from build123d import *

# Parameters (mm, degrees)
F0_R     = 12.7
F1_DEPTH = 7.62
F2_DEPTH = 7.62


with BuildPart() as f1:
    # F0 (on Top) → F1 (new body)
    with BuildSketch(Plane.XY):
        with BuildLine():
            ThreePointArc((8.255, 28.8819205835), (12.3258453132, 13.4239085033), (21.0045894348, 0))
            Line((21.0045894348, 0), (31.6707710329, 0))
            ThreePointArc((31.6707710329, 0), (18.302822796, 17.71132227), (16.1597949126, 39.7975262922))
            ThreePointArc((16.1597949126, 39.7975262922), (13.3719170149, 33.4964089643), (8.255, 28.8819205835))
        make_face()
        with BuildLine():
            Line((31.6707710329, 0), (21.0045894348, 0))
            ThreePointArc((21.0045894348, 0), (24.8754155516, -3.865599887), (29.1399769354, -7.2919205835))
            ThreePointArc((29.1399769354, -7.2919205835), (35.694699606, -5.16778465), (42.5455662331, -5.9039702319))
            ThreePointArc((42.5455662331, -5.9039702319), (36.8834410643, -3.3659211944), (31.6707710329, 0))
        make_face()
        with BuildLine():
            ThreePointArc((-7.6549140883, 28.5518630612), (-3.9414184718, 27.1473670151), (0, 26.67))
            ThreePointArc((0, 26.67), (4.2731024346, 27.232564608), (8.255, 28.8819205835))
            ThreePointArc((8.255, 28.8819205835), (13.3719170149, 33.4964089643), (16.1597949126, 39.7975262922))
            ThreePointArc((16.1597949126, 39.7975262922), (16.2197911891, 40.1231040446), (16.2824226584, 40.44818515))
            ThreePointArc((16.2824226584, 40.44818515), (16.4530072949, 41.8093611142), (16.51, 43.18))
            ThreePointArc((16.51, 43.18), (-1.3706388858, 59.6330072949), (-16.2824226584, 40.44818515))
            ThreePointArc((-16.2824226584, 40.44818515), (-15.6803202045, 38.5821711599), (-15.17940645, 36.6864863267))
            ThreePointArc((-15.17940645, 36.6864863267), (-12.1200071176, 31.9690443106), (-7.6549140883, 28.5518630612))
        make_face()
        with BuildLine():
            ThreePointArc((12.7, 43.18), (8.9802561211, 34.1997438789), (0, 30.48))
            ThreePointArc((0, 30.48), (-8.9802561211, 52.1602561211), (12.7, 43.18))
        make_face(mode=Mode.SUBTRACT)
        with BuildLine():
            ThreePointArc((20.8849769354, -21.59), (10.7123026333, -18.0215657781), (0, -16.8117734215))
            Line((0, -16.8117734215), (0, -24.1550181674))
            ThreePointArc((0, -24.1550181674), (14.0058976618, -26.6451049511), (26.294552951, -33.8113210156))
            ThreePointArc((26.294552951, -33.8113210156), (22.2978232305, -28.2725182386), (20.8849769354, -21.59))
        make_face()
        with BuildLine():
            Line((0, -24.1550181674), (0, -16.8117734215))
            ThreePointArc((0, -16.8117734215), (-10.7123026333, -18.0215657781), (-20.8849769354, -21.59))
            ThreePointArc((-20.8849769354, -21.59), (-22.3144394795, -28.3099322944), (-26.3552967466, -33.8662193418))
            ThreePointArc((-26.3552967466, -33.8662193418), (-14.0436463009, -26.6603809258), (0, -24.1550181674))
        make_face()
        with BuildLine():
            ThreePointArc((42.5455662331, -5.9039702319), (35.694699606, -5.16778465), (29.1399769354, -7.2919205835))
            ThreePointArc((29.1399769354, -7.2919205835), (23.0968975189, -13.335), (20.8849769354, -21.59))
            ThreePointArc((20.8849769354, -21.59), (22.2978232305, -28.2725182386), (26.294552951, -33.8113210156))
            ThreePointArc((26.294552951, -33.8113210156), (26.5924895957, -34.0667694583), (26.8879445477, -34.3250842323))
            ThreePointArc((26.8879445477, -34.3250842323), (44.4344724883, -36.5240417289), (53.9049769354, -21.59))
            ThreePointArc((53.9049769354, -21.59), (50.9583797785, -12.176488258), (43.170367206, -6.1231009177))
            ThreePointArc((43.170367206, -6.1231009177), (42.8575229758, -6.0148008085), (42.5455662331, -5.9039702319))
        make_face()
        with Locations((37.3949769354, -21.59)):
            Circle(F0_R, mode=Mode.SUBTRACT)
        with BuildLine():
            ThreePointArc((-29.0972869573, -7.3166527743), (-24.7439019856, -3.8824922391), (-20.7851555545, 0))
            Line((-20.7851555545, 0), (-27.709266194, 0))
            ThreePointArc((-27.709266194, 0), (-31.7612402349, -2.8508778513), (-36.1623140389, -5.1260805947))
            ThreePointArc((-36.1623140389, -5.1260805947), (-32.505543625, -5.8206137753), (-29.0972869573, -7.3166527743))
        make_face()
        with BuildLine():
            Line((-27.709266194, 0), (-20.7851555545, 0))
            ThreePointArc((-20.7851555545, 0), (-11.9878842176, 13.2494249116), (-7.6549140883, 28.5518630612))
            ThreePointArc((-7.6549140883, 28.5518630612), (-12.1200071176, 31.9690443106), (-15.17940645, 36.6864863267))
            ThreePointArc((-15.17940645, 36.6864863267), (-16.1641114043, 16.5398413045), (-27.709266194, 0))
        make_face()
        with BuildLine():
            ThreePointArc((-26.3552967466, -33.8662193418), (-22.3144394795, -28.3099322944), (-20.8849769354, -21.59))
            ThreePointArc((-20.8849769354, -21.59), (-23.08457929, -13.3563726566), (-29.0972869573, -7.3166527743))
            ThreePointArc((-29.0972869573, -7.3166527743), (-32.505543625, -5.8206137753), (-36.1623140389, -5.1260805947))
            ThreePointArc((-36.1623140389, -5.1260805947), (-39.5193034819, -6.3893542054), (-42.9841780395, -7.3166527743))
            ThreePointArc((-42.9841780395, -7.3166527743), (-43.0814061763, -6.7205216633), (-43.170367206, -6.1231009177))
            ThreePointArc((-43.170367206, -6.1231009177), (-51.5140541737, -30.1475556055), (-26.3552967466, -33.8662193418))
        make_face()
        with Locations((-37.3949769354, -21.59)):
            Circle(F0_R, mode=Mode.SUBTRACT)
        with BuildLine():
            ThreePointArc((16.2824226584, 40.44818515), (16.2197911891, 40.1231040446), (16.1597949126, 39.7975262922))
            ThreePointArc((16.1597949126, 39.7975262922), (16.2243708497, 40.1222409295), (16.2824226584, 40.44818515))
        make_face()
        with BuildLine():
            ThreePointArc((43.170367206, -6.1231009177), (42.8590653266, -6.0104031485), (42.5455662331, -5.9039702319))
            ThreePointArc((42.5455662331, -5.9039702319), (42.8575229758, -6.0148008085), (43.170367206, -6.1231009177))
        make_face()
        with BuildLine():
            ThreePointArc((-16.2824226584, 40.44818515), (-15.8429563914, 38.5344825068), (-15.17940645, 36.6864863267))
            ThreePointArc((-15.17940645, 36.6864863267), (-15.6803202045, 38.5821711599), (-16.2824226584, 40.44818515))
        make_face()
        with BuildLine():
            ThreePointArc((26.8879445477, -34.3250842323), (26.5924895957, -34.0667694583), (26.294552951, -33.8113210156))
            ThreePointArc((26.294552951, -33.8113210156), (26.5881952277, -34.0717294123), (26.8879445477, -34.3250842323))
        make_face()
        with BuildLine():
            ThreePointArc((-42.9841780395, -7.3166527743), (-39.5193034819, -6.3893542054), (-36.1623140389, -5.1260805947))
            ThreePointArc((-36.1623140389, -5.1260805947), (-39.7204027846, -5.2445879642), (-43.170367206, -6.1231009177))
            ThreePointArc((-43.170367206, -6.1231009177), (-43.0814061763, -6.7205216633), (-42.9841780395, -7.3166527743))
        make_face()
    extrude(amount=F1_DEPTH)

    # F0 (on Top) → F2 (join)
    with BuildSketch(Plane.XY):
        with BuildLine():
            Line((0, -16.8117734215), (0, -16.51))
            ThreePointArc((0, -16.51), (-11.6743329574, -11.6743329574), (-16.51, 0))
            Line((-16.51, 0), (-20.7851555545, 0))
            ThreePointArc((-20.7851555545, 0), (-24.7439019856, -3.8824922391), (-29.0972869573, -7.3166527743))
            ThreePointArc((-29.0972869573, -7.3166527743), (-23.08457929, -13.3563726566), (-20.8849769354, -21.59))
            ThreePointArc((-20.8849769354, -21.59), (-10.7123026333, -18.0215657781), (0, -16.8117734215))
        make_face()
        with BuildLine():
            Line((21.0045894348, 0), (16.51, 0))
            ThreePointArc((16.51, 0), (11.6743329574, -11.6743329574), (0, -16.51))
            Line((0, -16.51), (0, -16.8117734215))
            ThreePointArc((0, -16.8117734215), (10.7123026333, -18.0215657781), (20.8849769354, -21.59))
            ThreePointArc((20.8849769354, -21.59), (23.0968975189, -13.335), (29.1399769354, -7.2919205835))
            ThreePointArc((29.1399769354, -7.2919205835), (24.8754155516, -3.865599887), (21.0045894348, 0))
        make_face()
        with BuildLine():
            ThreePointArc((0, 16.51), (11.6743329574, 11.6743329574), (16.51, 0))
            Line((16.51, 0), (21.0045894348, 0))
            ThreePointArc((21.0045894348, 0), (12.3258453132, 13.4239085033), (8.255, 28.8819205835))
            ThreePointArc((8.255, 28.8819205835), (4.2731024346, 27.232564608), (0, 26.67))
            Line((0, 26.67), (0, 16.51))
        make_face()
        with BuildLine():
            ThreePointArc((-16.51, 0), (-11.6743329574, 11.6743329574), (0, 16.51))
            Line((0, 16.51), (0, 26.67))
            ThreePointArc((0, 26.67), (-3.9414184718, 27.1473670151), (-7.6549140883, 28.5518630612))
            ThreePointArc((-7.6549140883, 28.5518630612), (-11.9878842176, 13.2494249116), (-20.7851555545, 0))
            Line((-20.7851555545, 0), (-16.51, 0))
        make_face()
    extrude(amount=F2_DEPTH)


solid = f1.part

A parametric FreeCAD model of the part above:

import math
import FreeCAD as App
import Part
import Sketcher

V = App.Vector
Q = App.Units.Quantity

doc = App.newDocument("Part")
body = doc.addObject("PartDesign::Body", "Body")

sketch1 = body.newObject("Sketcher::SketchObject", "Sketch")
sketch1.AttachmentSupport = (doc.getObject("XY_Plane"), [""])
sketch1.MapMode = "FlatFace"
sketch1.addGeometry(Part.ArcOfCircle(Part.Circle(V(0, -64.8, 0), V(0, 0, 1), 40.6), math.radians(90), math.radians(130)), False)
sketch1.addGeometry(Part.ArcOfCircle(Part.Circle(V(0, -64.8, 0), V(0, 0, 1), 40.6), math.radians(50), math.radians(90)), False)
sketch1.addGeometry(Part.ArcOfCircle(Part.Circle(V(37.4, -21.6, 0), V(0, 0, 1), 16.5), math.radians(-132.25), math.radians(-129.52)), False)
sketch1.addGeometry(Part.ArcOfCircle(Part.Circle(V(37.4, -21.6, 0), V(0, 0, 1), 16.5), math.radians(-130), math.radians(0)), False)
sketch1.addGeometry(Part.ArcOfCircle(Part.Circle(V(37.4, -21.6, 0), V(0, 0, 1), 16.5), math.radians(0), math.radians(70)), False)
sketch1.addGeometry(Part.ArcOfCircle(Part.Circle(V(37.4, -21.6, 0), V(0, 0, 1), 16.5), math.radians(69.52), math.radians(71.82)), False)
sketch1.addGeometry(Part.ArcOfCircle(Part.Circle(V(56.4, 32.6, 0), V(0, 0, 1), 40.9), math.radians(-127.2), math.radians(-109.79)), False)
sketch1.addGeometry(Part.ArcOfCircle(Part.Circle(V(56.4, 32.6, 0), V(0, 0, 1), 40.9), math.radians(170), math.radians(233)), False)
sketch1.addGeometry(Part.ArcOfCircle(Part.Circle(V(0, 43.2, 0), V(0, 0, 1), 16.5), math.radians(-11.82), math.radians(-9.52)), False)
sketch1.addGeometry(Part.ArcOfCircle(Part.Circle(V(0, 43.2, 0), V(0, 0, 1), 16.5), math.radians(-9.52), math.radians(0)), False)
sketch1.addGeometry(Part.ArcOfCircle(Part.Circle(V(0, 43.2, 0), V(0, 0, 1), 16.5), math.radians(0), math.radians(190)), False)
sketch1.addGeometry(Part.ArcOfCircle(Part.Circle(V(0, 43.2, 0), V(0, 0, 1), 16.5), math.radians(-170.48), math.radians(-156.84)), False)
sketch1.addGeometry(Part.ArcOfCircle(Part.Circle(V(-50.7, 28.3, 0), V(0, 0, 1), 36.5), math.radians(-51), math.radians(13)), False)
sketch1.addGeometry(Part.ArcOfCircle(Part.Circle(V(-50.7, 28.3, 0), V(0, 0, 1), 36.5), math.radians(-66.56), math.radians(-50.97)), False)
sketch1.addGeometry(Part.ArcOfCircle(Part.Circle(V(-37.4, -21.6, 0), V(0, 0, 1), 16.5), math.radians(86), math.radians(110)), False)
sketch1.addGeometry(Part.ArcOfCircle(Part.Circle(V(-37.4, -21.6, 0), V(0, 0, 1), 16.5), math.radians(110), math.radians(312)), False)
sketch1.addGeometry(Part.Circle(V(-37.4, -21.6, 0), V(0, 0, 1), 12.7), False)
sketch1.addGeometry(Part.Circle(V(37.4, -21.6, 0), V(0, 0, 1), 12.7), False)
sketch1.addGeometry(Part.ArcOfCircle(Part.Circle(V(58.7, 33.9, 0), V(0, 0, 1), 50.7), math.radians(-174), math.radians(-138)), False)
sketch1.addGeometry(Part.ArcOfCircle(Part.Circle(V(58.7, 33.9, 0), V(0, 0, 1), 50.7), math.radians(-138.05), math.radians(-125.69)), False)
sketch1.addGeometry(Part.ArcOfCircle(Part.Circle(V(37.4, -21.6, 0), V(0, 0, 1), 16.5), math.radians(120), math.radians(180)), False)
sketch1.addGeometry(Part.ArcOfCircle(Part.Circle(V(0, -64.8, 0), V(0, 0, 1), 48), math.radians(64), math.radians(90)), False)
sketch1.addGeometry(Part.ArcOfCircle(Part.Circle(V(0, -64.8, 0), V(0, 0, 1), 48), math.radians(90), math.radians(116)), False)
sketch1.addGeometry(Part.ArcOfCircle(Part.Circle(V(-37.4, -21.6, 0), V(0, 0, 1), 16.5), math.radians(0), math.radians(60)), False)
sketch1.addGeometry(Part.ArcOfCircle(Part.Circle(V(-58.8, 34.8, 0), V(0, 0, 1), 51.5), math.radians(-54.82), math.radians(-42.47)), False)
sketch1.addGeometry(Part.ArcOfCircle(Part.Circle(V(-58.8, 34.8, 0), V(0, 0, 1), 51.5), math.radians(-42), math.radians(-7)), False)
sketch1.addGeometry(Part.ArcOfCircle(Part.Circle(V(0, 43.2, 0), V(0, 0, 1), 16.5), math.radians(-118), math.radians(-90)), False)
sketch1.addGeometry(Part.ArcOfCircle(Part.Circle(V(0, 43.2, 0), V(0, 0, 1), 16.5), math.radians(-90), math.radians(-60)), False)
sketch1.addGeometry(Part.ArcOfCircle(Part.Circle(V(0, 43.2, 0), V(0, 0, 1), 12.7), math.radians(0), math.radians(270)), False)
sketch1.addGeometry(Part.ArcOfCircle(Part.Circle(V(0, 43.2, 0), V(0, 0, 1), 12.7), math.radians(-90), math.radians(0)), False)
sketch1.addConstraint(Sketcher.Constraint("Tangent", 0, 1, 1, 2))
sketch1.addConstraint(Sketcher.Constraint("Coincident", 1, 1, 2, 1))
sketch1.addConstraint(Sketcher.Constraint("Tangent", 2, 2, 3, 1))
sketch1.addConstraint(Sketcher.Constraint("Tangent", 3, 2, 4, 1))
sketch1.addConstraint(Sketcher.Constraint("Tangent", 4, 2, 5, 1))
sketch1.addConstraint(Sketcher.Constraint("Coincident", 5, 2, 6, 2))
sketch1.addConstraint(Sketcher.Constraint("Tangent", 6, 1, 7, 2))
sketch1.addConstraint(Sketcher.Constraint("Coincident", 7, 1, 8, 1))
sketch1.addConstraint(Sketcher.Constraint("Tangent", 8, 2, 9, 1))
sketch1.addConstraint(Sketcher.Constraint("Tangent", 9, 2, 10, 1))
sketch1.addConstraint(Sketcher.Constraint("Tangent", 10, 2, 11, 1))
sketch1.addConstraint(Sketcher.Constraint("Coincident", 11, 2, 12, 2))
sketch1.addConstraint(Sketcher.Constraint("Tangent", 12, 1, 13, 2))
sketch1.addConstraint(Sketcher.Constraint("Coincident", 13, 1, 14, 1))
sketch1.addConstraint(Sketcher.Constraint("Tangent", 14, 2, 15, 1))
sketch1.addConstraint(Sketcher.Constraint("Coincident", 15, 2, 0, 2))
sketch1.addConstraint(Sketcher.Constraint("Tangent", 18, 2, 19, 1))
sketch1.addConstraint(Sketcher.Constraint("Coincident", 19, 2, 20, 1))
sketch1.addConstraint(Sketcher.Constraint("Coincident", 20, 2, 21, 1))
sketch1.addConstraint(Sketcher.Constraint("Tangent", 21, 2, 22, 1))
sketch1.addConstraint(Sketcher.Constraint("Coincident", 22, 2, 23, 1))
sketch1.addConstraint(Sketcher.Constraint("Coincident", 23, 2, 24, 1))
sketch1.addConstraint(Sketcher.Constraint("Tangent", 24, 2, 25, 1))
sketch1.addConstraint(Sketcher.Constraint("Coincident", 25, 2, 26, 1))
sketch1.addConstraint(Sketcher.Constraint("Tangent", 26, 2, 27, 1))
sketch1.addConstraint(Sketcher.Constraint("Coincident", 27, 2, 18, 1))
sketch1.addConstraint(Sketcher.Constraint("Tangent", 28, 1, 29, 2))
sketch1.addConstraint(Sketcher.Constraint("Coincident", 29, 1, 28, 2))
sketch1.addConstraint(Sketcher.Constraint("Coincident", 4, 3, 2, 3))
sketch1.addConstraint(Sketcher.Constraint("Coincident", 10, 3, 8, 3))
sketch1.addConstraint(Sketcher.Constraint("Coincident", 16, 3, 14, 3))
sketch1.addConstraint(Sketcher.Constraint("Coincident", 17, 3, 2, 3))
sketch1.addConstraint(Sketcher.Constraint("Coincident", 20, 3, 2, 3))
sketch1.addConstraint(Sketcher.Constraint("Coincident", 23, 3, 14, 3))
sketch1.addConstraint(Sketcher.Constraint("Coincident", 26, 3, 8, 3))
sketch1.addConstraint(Sketcher.Constraint("Coincident", 28, 3, 8, 3))
sketch1.addConstraint(Sketcher.Constraint("Equal", 0, 1))
sketch1.addConstraint(Sketcher.Constraint("Equal", 4, 5))
sketch1.addConstraint(Sketcher.Constraint("Equal", 6, 7))
sketch1.addConstraint(Sketcher.Constraint("Equal", 5, 8))
sketch1.addConstraint(Sketcher.Constraint("Equal", 10, 11))
sketch1.addConstraint(Sketcher.Constraint("Equal", 12, 13))
sketch1.addConstraint(Sketcher.Constraint("Equal", 11, 14))
sketch1.addConstraint(Sketcher.Constraint("Equal", 14, 15))
sketch1.addConstraint(Sketcher.Constraint("Equal", 16, 17))
sketch1.addConstraint(Sketcher.Constraint("Equal", 18, 19))
sketch1.addConstraint(Sketcher.Constraint("Equal", 15, 20))
sketch1.addConstraint(Sketcher.Constraint("Equal", 21, 22))
sketch1.addConstraint(Sketcher.Constraint("Equal", 20, 23))
sketch1.addConstraint(Sketcher.Constraint("Equal", 24, 25))
sketch1.addConstraint(Sketcher.Constraint("Equal", 23, 26))
sketch1.addConstraint(Sketcher.Constraint("Equal", 26, 27))
sketch1.addConstraint(Sketcher.Constraint("Equal", 17, 28))
sketch1.addConstraint(Sketcher.Constraint("Symmetric", 2, 3, 14, 3, -2))
sketch1.addConstraint(Sketcher.Constraint("Symmetric", 8, 2, 10, 2, -2))
sketch1.addConstraint(Sketcher.Constraint("PointOnObject", 21, 3, -2))
sketch1.addConstraint(Sketcher.Constraint("PointOnObject", 0, 1, -2))
sketch1.addConstraint(Sketcher.Constraint("PointOnObject", 6, 1, -1))
sketch1.addConstraint(Sketcher.Constraint("PointOnObject", 12, 1, -1))
sketch1.addConstraint(Sketcher.Constraint("PointOnObject", 18, 2, -1))
sketch1.addConstraint(Sketcher.Constraint("PointOnObject", 21, 2, -2))
sketch1.addConstraint(Sketcher.Constraint("PointOnObject", 24, 2, -1))
sketch1.addConstraint(Sketcher.Constraint("PointOnObject", 26, 2, -2))
sketch1.addConstraint(Sketcher.Constraint("PointOnObject", 29, 1, -2))
sketch1.addConstraint(Sketcher.Constraint("Horizontal", 23, 3, 3, 2))
sketch1.addConstraint(Sketcher.Constraint("Horizontal", 29, 3, 9, 2))
sketch1.addConstraint(Sketcher.Constraint("Horizontal", 4, 2, 14, 2))
sketch1.addConstraint(Sketcher.Constraint("Horizontal", 3, 2, 20, 2))
sketch1.addConstraint(Sketcher.Constraint("Horizontal", 9, 2, 28, 1))
sketch1.addConstraint(Sketcher.Constraint("Diameter", 16, Q("1 in")))
sketch1.addConstraint(Sketcher.Constraint("Radius", 2, Q("0.65 in")))
sketch1.addConstraint(Sketcher.Constraint("DistanceY", -1, 1, 8, 3, Q("1.7 in")))
sketch1.addConstraint(Sketcher.Constraint("DistanceY", 2, 3, -1, 1, Q("0.85 in")))
sketch1.addConstraint(Sketcher.Constraint("DistanceX", -1, 1, 27, 2, Q("0.325 in")))
sketch1.addConstraint(Sketcher.Constraint("Radius", 0, 40.62364))
sketch1.addConstraint(Sketcher.Constraint("Radius", 18, 50.730049))
sketch1.addConstraint(Sketcher.Constraint("DistanceX", 19, 2, 5, 3, Q("0.325 in")))
sketch1.addConstraint(Sketcher.Constraint("Radius", 6, 40.871506))
sketch1.addConstraint(Sketcher.Constraint("Radius", 12, 36.458687))
sketch1.addConstraint(Sketcher.Constraint("Radius", 21, 48.031807))
sketch1.addConstraint(Sketcher.Constraint("Radius", 24, 51.475903))
sketch1.addConstraint(Sketcher.Constraint("DistanceX", 13, 1, 24, 2, Q("0.6053999 in")))
sketch1.addConstraint(Sketcher.Constraint("DistanceX", 24, 3, -1, 1, 58.755499))
sketch1.addConstraint(Sketcher.Constraint("DistanceY", 4, 2, -1, 1, 6.123101))
sketch1.addConstraint(Sketcher.Constraint("DistanceX", 5, 2, 4, 2, 0.624801))
sketch1.addConstraint(Sketcher.Constraint("DistanceY", 11, 2, 10, 2, 3.761699))
sketch1.addConstraint(Sketcher.Constraint("DistanceY", 15, 2, 0, 1, 9.711201))
sketch1.addConstraint(Sketcher.Constraint("DistanceX", -1, 1, 0, 3, 0.001889))
sketch1.addConstraint(Sketcher.Constraint("DistanceY", 0, 3, -1, 1, 64.778658))
sketch1.addConstraint(Sketcher.Constraint("DistanceX", 12, 3, -1, 1, 50.665989))
sketch1.addConstraint(Sketcher.Constraint("DistanceX", -1, 1, 6, 1, 31.670771))
sketch1.addConstraint(Sketcher.Constraint("DistanceY", 13, 1, -1, 1, 5.126081))
sketch1.addConstraint(Sketcher.Constraint("DistanceX", 1, 1, 2, 2, 0.593392))
pad1 = body.newObject("PartDesign::Pad", "Pad")
pad1.Profile = sketch1
pad1.Length = Q("0.3 in")

sketch2 = body.newObject("Sketcher::SketchObject", "Sketch001")
sketch2.AttachmentSupport = (doc.getObject("XY_Plane"), [""])
sketch2.MapMode = "FlatFace"
sketch2.addGeometry(Part.ArcOfCircle(Part.Circle(V(-59, 35, 0), V(0, 0, 1), 51), math.radians(-54.82), math.radians(-42.47)), False)
sketch2.addGeometry(Part.ArcOfCircle(Part.Circle(V(-37, -22, 0), V(0, 0, 1), 17), math.radians(0), math.radians(60)), False)
sketch2.addGeometry(Part.ArcOfCircle(Part.Circle(V(0, -65, 0), V(0, 0, 1), 48), math.radians(90), math.radians(116)), False)
sketch2.addGeometry(Part.ArcOfCircle(Part.Circle(V(0, -65, 0), V(0, 0, 1), 48), math.radians(64), math.radians(90)), False)
sketch2.addGeometry(Part.ArcOfCircle(Part.Circle(V(37, -22, 0), V(0, 0, 1), 17), math.radians(120), math.radians(180)), False)
sketch2.addGeometry(Part.ArcOfCircle(Part.Circle(V(59, 34, 0), V(0, 0, 1), 51), math.radians(-138.05), math.radians(-125.69)), False)
sketch2.addGeometry(Part.ArcOfCircle(Part.Circle(V(59, 34, 0), V(0, 0, 1), 51), math.radians(-174), math.radians(-138)), False)
sketch2.addGeometry(Part.ArcOfCircle(Part.Circle(V(0, 43, 0), V(0, 0, 1), 17), math.radians(-90), math.radians(-60)), False)
sketch2.addGeometry(Part.ArcOfCircle(Part.Circle(V(0, 43, 0), V(0, 0, 1), 17), math.radians(-118), math.radians(-90)), False)
sketch2.addGeometry(Part.ArcOfCircle(Part.Circle(V(-59, 35, 0), V(0, 0, 1), 51), math.radians(-42), math.radians(-7)), False)
sketch2.addGeometry(Part.ArcOfCircle(Part.Circle(V(0, 0, 0), V(0, 0, 1), 17), math.radians(180), math.radians(270)), False)
sketch2.addGeometry(Part.ArcOfCircle(Part.Circle(V(0, 0, 0), V(0, 0, 1), 17), math.radians(90), math.radians(180)), False)
sketch2.addGeometry(Part.ArcOfCircle(Part.Circle(V(0, 0, 0), V(0, 0, 1), 17), math.radians(0), math.radians(90)), False)
sketch2.addGeometry(Part.ArcOfCircle(Part.Circle(V(0, 0, 0), V(0, 0, 1), 17), math.radians(-90), math.radians(0)), False)
sketch2.addConstraint(Sketcher.Constraint("Coincident", 0, 1, 1, 2))
sketch2.addConstraint(Sketcher.Constraint("Coincident", 1, 1, 2, 2))
sketch2.addConstraint(Sketcher.Constraint("Tangent", 2, 1, 3, 2))
sketch2.addConstraint(Sketcher.Constraint("Coincident", 3, 1, 4, 2))
sketch2.addConstraint(Sketcher.Constraint("Coincident", 4, 1, 5, 2))
sketch2.addConstraint(Sketcher.Constraint("Tangent", 5, 1, 6, 2))
sketch2.addConstraint(Sketcher.Constraint("Coincident", 6, 1, 7, 2))
sketch2.addConstraint(Sketcher.Constraint("Tangent", 7, 1, 8, 2))
sketch2.addConstraint(Sketcher.Constraint("Coincident", 8, 1, 9, 2))
sketch2.addConstraint(Sketcher.Constraint("Tangent", 9, 1, 0, 2))
sketch2.addConstraint(Sketcher.Constraint("Tangent", 10, 1, 11, 2))
sketch2.addConstraint(Sketcher.Constraint("Tangent", 11, 1, 12, 2))
sketch2.addConstraint(Sketcher.Constraint("Tangent", 12, 1, 13, 2))
sketch2.addConstraint(Sketcher.Constraint("Tangent", 13, 1, 10, 2))
sketch2.addConstraint(Sketcher.Constraint("Coincident", 10, 3, -1, 1))
sketch2.addConstraint(Sketcher.Constraint("Equal", 2, 3))
sketch2.addConstraint(Sketcher.Constraint("Equal", 1, 4))
sketch2.addConstraint(Sketcher.Constraint("Equal", 5, 6))
sketch2.addConstraint(Sketcher.Constraint("Equal", 4, 7))
sketch2.addConstraint(Sketcher.Constraint("Equal", 7, 8))
sketch2.addConstraint(Sketcher.Constraint("Equal", 0, 9))
sketch2.addConstraint(Sketcher.Constraint("Equal", 8, 10))
sketch2.addConstraint(Sketcher.Constraint("Equal", 10, 11))
sketch2.addConstraint(Sketcher.Constraint("Symmetric", 1, 3, 4, 3, -2))
sketch2.addConstraint(Sketcher.Constraint("PointOnObject", 2, 3, -2))
sketch2.addConstraint(Sketcher.Constraint("PointOnObject", 7, 3, -2))
sketch2.addConstraint(Sketcher.Constraint("PointOnObject", 2, 1, -2))
sketch2.addConstraint(Sketcher.Constraint("PointOnObject", 5, 1, -1))
sketch2.addConstraint(Sketcher.Constraint("PointOnObject", 7, 1, -2))
sketch2.addConstraint(Sketcher.Constraint("PointOnObject", 9, 1, -1))
sketch2.addConstraint(Sketcher.Constraint("PointOnObject", 10, 1, -1))
sketch2.addConstraint(Sketcher.Constraint("PointOnObject", 11, 1, -2))
sketch2.addConstraint(Sketcher.Constraint("PointOnObject", 12, 1, -1))
sketch2.addConstraint(Sketcher.Constraint("PointOnObject", 13, 1, -2))
sketch2.addConstraint(Sketcher.Constraint("Horizontal", 4, 3, 1, 1))
sketch2.addConstraint(Sketcher.Constraint("Radius", 1, Q("0.65 in")))
sketch2.addConstraint(Sketcher.Constraint("DistanceY", -1, 1, 7, 3, Q("1.7 in")))
sketch2.addConstraint(Sketcher.Constraint("DistanceY", 1, 3, -1, 1, Q("0.85 in")))
sketch2.addConstraint(Sketcher.Constraint("DistanceX", -1, 1, 6, 1, Q("0.325 in")))
sketch2.addConstraint(Sketcher.Constraint("Radius", 5, 50.730049))
sketch2.addConstraint(Sketcher.Constraint("DistanceX", 4, 1, 4, 3, Q("0.325 in")))
sketch2.addConstraint(Sketcher.Constraint("Radius", 0, 51.475903))
sketch2.addConstraint(Sketcher.Constraint("Radius", 2, 48.031807))
sketch2.addConstraint(Sketcher.Constraint("DistanceX", 0, 3, -1, 1, 58.755499))
sketch2.addConstraint(Sketcher.Constraint("DistanceY", 2, 3, -1, 1, 64.84358))
sketch2.addConstraint(Sketcher.Constraint("DistanceX", 1, 3, 0, 1, 8.29769))
pad2 = body.newObject("PartDesign::Pad", "Pad001")
pad2.Profile = sketch2
pad2.Length = Q("0.3 in")

doc.recompute()
